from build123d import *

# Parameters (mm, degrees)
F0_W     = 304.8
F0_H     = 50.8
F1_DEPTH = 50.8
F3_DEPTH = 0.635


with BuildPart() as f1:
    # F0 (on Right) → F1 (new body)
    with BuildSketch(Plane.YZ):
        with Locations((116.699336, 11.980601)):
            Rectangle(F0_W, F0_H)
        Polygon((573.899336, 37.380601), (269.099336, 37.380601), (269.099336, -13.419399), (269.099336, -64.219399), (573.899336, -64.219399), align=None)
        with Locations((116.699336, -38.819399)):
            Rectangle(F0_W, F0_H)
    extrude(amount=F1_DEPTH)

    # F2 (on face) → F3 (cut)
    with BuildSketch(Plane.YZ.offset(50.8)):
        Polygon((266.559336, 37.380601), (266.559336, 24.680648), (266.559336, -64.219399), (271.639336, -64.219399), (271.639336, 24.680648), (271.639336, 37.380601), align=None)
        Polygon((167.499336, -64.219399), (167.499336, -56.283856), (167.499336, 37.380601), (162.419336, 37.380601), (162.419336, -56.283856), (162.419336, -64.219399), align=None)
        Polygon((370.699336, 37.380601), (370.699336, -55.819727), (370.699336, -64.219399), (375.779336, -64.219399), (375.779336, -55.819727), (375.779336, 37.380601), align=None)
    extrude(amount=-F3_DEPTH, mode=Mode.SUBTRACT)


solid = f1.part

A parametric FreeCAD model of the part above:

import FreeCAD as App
import Part
import Sketcher
Q = App.Units.Quantity

doc = App.newDocument("Part")
body = doc.addObject("PartDesign::Body", "Body")

sketch1 = body.newObject("Sketcher::SketchObject", "Sketch")
sketch1.AttachmentSupport = (doc.getObject("YZ_Plane"), [""])
sketch1.MapMode = "FlatFace"
sketch1.addGeometry(Part.LineSegment(App.Vector(-36, 37, 0), App.Vector(-36, -64, 0)), False)
sketch1.addGeometry(Part.LineSegment(App.Vector(-36, -64, 0), App.Vector(574, -64, 0)), False)
sketch1.addGeometry(Part.LineSegment(App.Vector(574, -64, 0), App.Vector(574, 37, 0)), False)
sketch1.addGeometry(Part.LineSegment(App.Vector(574, 37, 0), App.Vector(-36, 37, 0)), False)
sketch1.addConstraint(Sketcher.Constraint("Coincident", 0, 2, 1, 1))
sketch1.addConstraint(Sketcher.Constraint("Coincident", 1, 2, 2, 1))
sketch1.addConstraint(Sketcher.Constraint("Coincident", 2, 2, 3, 1))
sketch1.addConstraint(Sketcher.Constraint("Coincident", 3, 2, 0, 1))
sketch1.addConstraint(Sketcher.Constraint("Vertical", 0))
sketch1.addConstraint(Sketcher.Constraint("Horizontal", 1))
sketch1.addConstraint(Sketcher.Constraint("Vertical", 2))
sketch1.addConstraint(Sketcher.Constraint("Horizontal", 3))
sketch1.addConstraint(Sketcher.Constraint("DistanceX", 1, 1, 1, 2, Q("24 in")))
sketch1.addConstraint(Sketcher.Constraint("DistanceY", 0, 2, 0, 1, Q("4 in")))
sketch1.addConstraint(Sketcher.Constraint("DistanceY", 0, 2, -1, 1, 64.219399))
sketch1.addConstraint(Sketcher.Constraint("DistanceX", 0, 2, -1, 1, 35.700664))
pad1 = body.newObject("PartDesign::Pad", "Pad")
pad1.Profile = sketch1
pad1.Length = Q("2 in")

sketch2 = body.newObject("Sketcher::SketchObject", "Sketch001")
sketch2.AttachmentSupport = (doc.getObject("YZ_Plane"), [""])
sketch2.MapMode = "FlatFace"
sketch2.AttachmentOffset = App.Placement(App.Vector(0, 0, 2 * 25.4), App.Rotation())
sketch2.addGeometry(Part.LineSegment(App.Vector(267, 37, 0), App.Vector(267, -64, 0)), False)
sketch2.addGeometry(Part.LineSegment(App.Vector(267, -64, 0), App.Vector(272, -64, 0)), False)
sketch2.addGeometry(Part.LineSegment(App.Vector(272, -64, 0), App.Vector(272, 37, 0)), False)
sketch2.addGeometry(Part.LineSegment(App.Vector(272, 37, 0), App.Vector(267, 37, 0)), False)
sketch2.addGeometry(Part.LineSegment(App.Vector(167, -64, 0), App.Vector(167, 37, 0)), False)
sketch2.addGeometry(Part.LineSegment(App.Vector(167, 37, 0), App.Vector(162, 37, 0)), False)
sketch2.addGeometry(Part.LineSegment(App.Vector(162, 37, 0), App.Vector(162, -64, 0)), False)
sketch2.addGeometry(Part.LineSegment(App.Vector(162, -64, 0), App.Vector(167, -64, 0)), False)
sketch2.addGeometry(Part.LineSegment(App.Vector(371, 37, 0), App.Vector(371, -64, 0)), False)
sketch2.addGeometry(Part.LineSegment(App.Vector(371, -64, 0), App.Vector(376, -64, 0)), False)
sketch2.addGeometry(Part.LineSegment(App.Vector(376, -64, 0), App.Vector(376, 37, 0)), False)
sketch2.addGeometry(Part.LineSegment(App.Vector(376, 37, 0), App.Vector(371, 37, 0)), False)
sketch2.addConstraint(Sketcher.Constraint("Coincident", 0, 2, 1, 1))
sketch2.addConstraint(Sketcher.Constraint("Coincident", 1, 2, 2, 1))
sketch2.addConstraint(Sketcher.Constraint("Coincident", 2, 2, 3, 1))
sketch2.addConstraint(Sketcher.Constraint("Coincident", 3, 2, 0, 1))
sketch2.addConstraint(Sketcher.Constraint("Coincident", 4, 2, 5, 1))
sketch2.addConstraint(Sketcher.Constraint("Coincident", 5, 2, 6, 1))
sketch2.addConstraint(Sketcher.Constraint("Coincident", 6, 2, 7, 1))
sketch2.addConstraint(Sketcher.Constraint("Coincident", 7, 2, 4, 1))
sketch2.addConstraint(Sketcher.Constraint("Coincident", 8, 2, 9, 1))
sketch2.addConstraint(Sketcher.Constraint("Coincident", 9, 2, 10, 1))
sketch2.addConstraint(Sketcher.Constraint("Coincident", 10, 2, 11, 1))
sketch2.addConstraint(Sketcher.Constraint("Coincident", 11, 2, 8, 1))
sketch2.addConstraint(Sketcher.Constraint("Vertical", 0))
sketch2.addConstraint(Sketcher.Constraint("Horizontal", 1))
sketch2.addConstraint(Sketcher.Constraint("Vertical", 2))
sketch2.addConstraint(Sketcher.Constraint("Horizontal", 3))
sketch2.addConstraint(Sketcher.Constraint("Vertical", 4))
sketch2.addConstraint(Sketcher.Constraint("Horizontal", 5))
sketch2.addConstraint(Sketcher.Constraint("Vertical", 6))
sketch2.addConstraint(Sketcher.Constraint("Horizontal", 7))
sketch2.addConstraint(Sketcher.Constraint("Vertical", 8))
sketch2.addConstraint(Sketcher.Constraint("Horizontal", 9))
sketch2.addConstraint(Sketcher.Constraint("Vertical", 10))
sketch2.addConstraint(Sketcher.Constraint("Horizontal", 11))
sketch2.addConstraint(Sketcher.Constraint("Horizontal", 3, 2, 4, 2))
sketch2.addConstraint(Sketcher.Constraint("Horizontal", 1, 2, 6, 2))
sketch2.addConstraint(Sketcher.Constraint("Horizontal", 7, 2, 8, 2))
sketch2.addConstraint(Sketcher.Constraint("Horizontal", 5, 2, 10, 2))
sketch2.addConstraint(Sketcher.Constraint("Equal", 3, 5))
sketch2.addConstraint(Sketcher.Constraint("Equal", 7, 9))
sketch2.addConstraint(Sketcher.Constraint("DistanceY", 0, 2, 0, 1, Q("4 in")))
sketch2.addConstraint(Sketcher.Constraint("DistanceX", 1, 1, 1, 2, Q("0.2 in")))
sketch2.addConstraint(Sketcher.Constraint("DistanceX", 7, 2, 8, 2, Q("8 in")))
sketch2.addConstraint(Sketcher.Constraint("DistanceX", 4, 2, 3, 2, Q("3.9 in")))
sketch2.addConstraint(Sketcher.Constraint("DistanceY", 0, 2, -1, 1, 64.219399))
sketch2.addConstraint(Sketcher.Constraint("DistanceX", -1, 1, 0, 2, 266.559336))
pocket1 = body.newObject("PartDesign::Pocket", "Pocket")
pocket1.Profile = sketch2
pocket1.Length = Q("0.025 in")

doc.recompute()
